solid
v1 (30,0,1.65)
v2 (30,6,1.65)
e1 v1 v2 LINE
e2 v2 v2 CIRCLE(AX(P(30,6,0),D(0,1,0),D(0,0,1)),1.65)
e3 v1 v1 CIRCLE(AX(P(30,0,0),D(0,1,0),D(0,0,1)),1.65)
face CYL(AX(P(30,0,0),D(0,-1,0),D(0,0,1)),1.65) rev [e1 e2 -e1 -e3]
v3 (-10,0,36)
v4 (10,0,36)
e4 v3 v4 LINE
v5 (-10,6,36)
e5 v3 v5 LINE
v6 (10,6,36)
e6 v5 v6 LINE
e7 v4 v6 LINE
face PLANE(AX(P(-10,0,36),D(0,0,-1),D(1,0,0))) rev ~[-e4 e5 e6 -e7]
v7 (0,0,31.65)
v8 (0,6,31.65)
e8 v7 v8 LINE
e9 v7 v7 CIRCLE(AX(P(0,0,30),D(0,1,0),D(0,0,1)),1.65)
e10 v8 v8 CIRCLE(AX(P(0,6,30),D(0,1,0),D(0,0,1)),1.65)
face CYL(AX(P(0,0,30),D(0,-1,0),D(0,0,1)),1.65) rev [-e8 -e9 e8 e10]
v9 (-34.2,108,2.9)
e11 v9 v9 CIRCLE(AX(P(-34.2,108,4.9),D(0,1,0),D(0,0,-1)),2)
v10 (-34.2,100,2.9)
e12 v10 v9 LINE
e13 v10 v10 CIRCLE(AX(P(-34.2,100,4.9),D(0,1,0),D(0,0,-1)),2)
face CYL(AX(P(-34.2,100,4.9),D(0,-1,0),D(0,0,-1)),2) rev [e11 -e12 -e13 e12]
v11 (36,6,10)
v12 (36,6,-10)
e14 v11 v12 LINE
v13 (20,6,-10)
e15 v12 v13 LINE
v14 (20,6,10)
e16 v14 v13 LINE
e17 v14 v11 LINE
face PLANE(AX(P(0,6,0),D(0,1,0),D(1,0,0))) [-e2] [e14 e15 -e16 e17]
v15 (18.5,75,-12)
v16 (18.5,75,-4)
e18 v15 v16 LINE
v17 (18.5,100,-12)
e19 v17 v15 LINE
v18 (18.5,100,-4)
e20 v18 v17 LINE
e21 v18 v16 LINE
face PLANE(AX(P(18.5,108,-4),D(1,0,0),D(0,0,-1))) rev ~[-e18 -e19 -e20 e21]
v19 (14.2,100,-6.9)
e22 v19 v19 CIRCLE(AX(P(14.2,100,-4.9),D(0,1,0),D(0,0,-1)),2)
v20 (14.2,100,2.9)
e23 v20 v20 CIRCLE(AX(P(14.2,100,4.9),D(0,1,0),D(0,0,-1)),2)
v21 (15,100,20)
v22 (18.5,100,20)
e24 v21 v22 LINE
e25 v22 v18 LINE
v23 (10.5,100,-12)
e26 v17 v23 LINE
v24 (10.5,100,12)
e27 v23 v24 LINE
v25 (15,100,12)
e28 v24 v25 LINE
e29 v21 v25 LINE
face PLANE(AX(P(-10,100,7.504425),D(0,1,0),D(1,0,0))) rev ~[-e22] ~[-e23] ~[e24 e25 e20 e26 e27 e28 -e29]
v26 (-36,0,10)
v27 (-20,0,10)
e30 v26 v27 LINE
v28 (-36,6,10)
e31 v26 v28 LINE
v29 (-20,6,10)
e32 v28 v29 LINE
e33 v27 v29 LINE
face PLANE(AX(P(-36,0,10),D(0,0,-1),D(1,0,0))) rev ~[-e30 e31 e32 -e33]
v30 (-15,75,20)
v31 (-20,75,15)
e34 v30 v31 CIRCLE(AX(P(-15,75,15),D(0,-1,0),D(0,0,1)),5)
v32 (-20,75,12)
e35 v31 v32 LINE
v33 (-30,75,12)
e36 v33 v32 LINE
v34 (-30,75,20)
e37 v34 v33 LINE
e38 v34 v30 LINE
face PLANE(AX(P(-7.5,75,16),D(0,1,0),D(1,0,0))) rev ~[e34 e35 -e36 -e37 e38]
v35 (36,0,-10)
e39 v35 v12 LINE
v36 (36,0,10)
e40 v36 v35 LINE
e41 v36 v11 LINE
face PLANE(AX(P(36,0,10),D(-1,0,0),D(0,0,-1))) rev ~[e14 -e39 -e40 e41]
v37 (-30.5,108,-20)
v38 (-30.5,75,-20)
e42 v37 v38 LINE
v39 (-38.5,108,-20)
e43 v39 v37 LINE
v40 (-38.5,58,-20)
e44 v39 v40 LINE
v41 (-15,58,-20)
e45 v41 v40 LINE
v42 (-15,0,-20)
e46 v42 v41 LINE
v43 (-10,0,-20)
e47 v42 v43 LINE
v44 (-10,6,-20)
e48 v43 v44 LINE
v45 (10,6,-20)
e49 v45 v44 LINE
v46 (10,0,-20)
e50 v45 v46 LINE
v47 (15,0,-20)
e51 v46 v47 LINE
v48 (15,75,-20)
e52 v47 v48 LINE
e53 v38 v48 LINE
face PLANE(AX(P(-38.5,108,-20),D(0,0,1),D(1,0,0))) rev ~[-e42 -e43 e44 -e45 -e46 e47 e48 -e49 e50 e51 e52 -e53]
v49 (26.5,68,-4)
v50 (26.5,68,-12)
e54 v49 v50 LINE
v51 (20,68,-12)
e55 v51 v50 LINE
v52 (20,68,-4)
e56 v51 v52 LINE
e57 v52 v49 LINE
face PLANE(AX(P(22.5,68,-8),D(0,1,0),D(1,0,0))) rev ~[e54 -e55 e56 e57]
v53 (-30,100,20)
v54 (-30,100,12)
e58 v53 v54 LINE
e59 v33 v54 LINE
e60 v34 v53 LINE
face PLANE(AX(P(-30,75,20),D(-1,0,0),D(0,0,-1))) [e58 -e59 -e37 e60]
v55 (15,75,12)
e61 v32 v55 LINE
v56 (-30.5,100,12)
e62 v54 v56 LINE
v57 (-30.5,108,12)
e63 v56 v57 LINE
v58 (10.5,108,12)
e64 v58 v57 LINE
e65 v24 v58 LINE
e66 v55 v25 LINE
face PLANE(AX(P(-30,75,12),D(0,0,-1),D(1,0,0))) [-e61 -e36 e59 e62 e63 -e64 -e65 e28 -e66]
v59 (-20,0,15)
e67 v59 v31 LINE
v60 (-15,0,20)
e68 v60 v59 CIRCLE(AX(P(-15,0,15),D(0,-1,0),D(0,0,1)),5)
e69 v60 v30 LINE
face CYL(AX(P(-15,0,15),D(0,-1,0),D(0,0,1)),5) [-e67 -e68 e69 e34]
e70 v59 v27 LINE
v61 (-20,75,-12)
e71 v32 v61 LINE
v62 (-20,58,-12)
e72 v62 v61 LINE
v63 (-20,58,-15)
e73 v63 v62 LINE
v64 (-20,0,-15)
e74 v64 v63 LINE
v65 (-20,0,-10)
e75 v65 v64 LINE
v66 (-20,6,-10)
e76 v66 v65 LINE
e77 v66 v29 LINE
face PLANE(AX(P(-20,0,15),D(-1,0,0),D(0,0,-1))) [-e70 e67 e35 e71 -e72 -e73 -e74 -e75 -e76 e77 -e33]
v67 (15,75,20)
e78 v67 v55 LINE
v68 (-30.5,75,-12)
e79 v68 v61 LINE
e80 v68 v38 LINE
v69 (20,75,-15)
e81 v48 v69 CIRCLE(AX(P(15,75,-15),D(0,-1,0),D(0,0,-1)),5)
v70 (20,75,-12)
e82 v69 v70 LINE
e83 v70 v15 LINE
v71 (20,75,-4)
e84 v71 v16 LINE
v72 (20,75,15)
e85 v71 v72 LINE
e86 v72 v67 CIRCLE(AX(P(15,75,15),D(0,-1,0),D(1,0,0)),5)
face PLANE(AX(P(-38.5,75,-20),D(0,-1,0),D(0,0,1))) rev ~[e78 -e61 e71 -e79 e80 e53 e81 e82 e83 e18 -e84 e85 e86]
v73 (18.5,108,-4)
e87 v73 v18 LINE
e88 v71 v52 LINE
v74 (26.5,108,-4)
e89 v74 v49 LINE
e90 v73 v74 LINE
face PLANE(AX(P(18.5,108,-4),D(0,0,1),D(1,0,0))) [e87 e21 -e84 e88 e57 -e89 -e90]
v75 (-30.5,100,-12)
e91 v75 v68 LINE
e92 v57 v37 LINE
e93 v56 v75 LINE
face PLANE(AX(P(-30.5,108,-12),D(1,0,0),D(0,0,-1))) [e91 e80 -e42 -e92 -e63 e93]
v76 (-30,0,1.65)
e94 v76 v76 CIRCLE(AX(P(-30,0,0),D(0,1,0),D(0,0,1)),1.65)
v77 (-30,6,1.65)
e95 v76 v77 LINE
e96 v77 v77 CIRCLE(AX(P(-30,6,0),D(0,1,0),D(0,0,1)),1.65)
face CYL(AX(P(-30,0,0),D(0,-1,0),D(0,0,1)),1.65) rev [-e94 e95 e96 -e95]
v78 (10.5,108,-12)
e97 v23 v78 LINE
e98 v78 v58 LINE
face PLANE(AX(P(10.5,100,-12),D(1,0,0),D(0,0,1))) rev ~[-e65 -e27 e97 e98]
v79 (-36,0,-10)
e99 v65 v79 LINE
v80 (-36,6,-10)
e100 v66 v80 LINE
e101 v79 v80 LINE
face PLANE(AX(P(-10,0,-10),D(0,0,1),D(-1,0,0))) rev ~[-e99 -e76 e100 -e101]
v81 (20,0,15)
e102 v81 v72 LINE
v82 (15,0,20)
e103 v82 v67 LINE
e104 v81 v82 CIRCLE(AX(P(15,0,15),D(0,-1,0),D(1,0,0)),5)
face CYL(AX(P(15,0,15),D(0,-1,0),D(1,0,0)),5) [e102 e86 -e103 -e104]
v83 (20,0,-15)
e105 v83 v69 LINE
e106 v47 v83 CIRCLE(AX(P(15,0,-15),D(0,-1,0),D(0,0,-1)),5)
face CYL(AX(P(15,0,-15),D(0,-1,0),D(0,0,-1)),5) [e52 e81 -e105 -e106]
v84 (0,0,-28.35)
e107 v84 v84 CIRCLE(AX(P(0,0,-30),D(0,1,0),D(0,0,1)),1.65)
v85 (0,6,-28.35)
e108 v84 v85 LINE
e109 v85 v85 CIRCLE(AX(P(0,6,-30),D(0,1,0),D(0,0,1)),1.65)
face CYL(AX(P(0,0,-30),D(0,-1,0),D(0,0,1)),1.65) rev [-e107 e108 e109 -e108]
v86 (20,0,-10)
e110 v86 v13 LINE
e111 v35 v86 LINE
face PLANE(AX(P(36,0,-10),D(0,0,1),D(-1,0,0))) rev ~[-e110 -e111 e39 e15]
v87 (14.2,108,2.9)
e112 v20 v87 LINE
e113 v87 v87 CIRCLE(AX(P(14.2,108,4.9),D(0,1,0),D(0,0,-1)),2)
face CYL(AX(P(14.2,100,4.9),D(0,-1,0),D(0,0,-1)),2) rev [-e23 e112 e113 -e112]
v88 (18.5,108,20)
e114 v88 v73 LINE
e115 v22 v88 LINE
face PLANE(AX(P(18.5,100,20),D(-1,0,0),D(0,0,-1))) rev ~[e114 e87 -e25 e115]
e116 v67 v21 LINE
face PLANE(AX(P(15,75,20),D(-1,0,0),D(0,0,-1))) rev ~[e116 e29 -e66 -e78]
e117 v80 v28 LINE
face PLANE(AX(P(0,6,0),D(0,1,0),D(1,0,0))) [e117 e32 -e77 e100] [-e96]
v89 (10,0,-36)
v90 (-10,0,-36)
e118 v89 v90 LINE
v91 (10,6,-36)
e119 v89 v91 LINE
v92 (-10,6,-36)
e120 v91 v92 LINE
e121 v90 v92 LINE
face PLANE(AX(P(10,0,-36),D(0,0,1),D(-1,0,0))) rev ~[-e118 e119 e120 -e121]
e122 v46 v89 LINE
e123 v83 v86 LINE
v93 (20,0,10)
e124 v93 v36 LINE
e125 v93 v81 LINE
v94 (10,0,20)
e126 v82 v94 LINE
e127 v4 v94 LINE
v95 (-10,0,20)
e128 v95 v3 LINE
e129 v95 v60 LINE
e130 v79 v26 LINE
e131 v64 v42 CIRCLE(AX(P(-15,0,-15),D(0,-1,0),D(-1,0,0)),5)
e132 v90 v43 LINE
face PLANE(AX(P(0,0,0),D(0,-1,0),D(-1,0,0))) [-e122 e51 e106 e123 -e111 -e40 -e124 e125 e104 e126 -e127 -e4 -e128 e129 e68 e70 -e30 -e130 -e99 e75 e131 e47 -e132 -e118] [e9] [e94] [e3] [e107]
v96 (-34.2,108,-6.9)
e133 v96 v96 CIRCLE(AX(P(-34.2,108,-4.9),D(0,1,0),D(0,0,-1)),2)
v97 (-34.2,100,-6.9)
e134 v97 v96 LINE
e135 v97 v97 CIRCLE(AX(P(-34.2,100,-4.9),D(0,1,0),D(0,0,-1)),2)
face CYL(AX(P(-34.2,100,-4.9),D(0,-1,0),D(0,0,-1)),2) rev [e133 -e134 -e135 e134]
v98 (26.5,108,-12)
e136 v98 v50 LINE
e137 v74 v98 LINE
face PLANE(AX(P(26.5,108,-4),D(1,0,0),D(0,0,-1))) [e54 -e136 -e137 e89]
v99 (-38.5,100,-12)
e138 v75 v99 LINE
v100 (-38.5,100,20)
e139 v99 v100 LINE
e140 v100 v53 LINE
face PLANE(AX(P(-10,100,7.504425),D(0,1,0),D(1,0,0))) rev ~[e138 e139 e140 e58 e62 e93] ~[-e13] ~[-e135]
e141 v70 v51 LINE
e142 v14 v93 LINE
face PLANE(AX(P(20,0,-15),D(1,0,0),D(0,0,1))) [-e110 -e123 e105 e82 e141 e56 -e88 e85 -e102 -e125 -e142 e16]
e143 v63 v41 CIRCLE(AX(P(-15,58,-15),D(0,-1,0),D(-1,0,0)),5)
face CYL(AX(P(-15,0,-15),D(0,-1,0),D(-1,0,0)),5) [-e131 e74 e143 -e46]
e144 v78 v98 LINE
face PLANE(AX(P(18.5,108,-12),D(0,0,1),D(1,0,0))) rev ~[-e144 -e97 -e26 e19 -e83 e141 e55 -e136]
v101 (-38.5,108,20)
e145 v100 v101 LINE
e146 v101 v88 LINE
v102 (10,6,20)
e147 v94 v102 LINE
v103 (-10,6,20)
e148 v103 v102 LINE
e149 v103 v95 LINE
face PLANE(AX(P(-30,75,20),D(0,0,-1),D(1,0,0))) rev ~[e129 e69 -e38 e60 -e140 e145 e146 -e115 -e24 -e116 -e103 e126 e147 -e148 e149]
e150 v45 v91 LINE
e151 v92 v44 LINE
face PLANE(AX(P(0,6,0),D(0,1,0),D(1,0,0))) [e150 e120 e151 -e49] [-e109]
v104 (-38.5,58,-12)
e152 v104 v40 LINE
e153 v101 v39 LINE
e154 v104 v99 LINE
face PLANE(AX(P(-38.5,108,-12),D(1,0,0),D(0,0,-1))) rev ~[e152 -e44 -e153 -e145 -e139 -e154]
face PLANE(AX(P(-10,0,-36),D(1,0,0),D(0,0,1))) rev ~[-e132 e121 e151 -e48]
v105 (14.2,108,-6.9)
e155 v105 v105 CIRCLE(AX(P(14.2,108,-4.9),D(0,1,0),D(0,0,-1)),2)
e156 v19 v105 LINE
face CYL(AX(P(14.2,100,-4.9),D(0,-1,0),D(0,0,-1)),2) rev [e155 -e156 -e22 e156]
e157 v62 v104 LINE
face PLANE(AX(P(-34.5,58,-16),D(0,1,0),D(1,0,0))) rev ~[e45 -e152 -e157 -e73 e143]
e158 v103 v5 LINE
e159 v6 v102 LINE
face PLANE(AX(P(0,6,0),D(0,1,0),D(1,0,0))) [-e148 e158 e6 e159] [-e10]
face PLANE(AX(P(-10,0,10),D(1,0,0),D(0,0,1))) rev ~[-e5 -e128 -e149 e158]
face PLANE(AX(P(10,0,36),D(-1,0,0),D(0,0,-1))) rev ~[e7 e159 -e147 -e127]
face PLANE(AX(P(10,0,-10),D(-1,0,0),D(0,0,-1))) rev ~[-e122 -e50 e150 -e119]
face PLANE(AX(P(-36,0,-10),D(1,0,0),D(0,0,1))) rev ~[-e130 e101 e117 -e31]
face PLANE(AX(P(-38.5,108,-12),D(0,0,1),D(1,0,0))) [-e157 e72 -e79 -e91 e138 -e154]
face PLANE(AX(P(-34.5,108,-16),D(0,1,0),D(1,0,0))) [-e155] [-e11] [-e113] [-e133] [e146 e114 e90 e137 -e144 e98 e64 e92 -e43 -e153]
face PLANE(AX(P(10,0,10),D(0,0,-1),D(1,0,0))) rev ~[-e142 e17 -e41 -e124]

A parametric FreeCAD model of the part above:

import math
import FreeCAD as App
import Part
import Sketcher
from FreeCAD import Vector


def add_polygon(sketch, points):
    """Adds a closed chain of lines whose ends are joined by coincident constraints."""
    first, n = sketch.GeometryCount, len(points)
    for a, b in zip(points, points[1:] + points[:1]):
        sketch.addGeometry(Part.LineSegment(App.Vector(*a, 0), App.Vector(*b, 0)), False)
    for i in range(n):
        sketch.addConstraint(Sketcher.Constraint("Coincident", first + i, 2, first + (i + 1) % n, 1))

doc = App.newDocument("Part")
body = doc.addObject("PartDesign::Body", "Body")

# Sketch on XZ plane
sketch1 = body.newObject("Sketcher::SketchObject", "Sketch")
sketch1.AttachmentSupport = (doc.getObject("XZ_Plane"), [""])
sketch1.MapMode = "FlatFace"
add_polygon(sketch1, [(-10, -36), (-10, -10), (-36, -10), (-36, 10), (-10, 10), (-10, 36), (10, 36), (10, 10), (36, 10), (36, -10), (10, -10), (10, -36)])  # lines 0-11
sketch1.addGeometry(Part.Circle(Vector(0, 30, 0), Vector(0, 0, 1), 1.6), False)  # 12
sketch1.addGeometry(Part.Circle(Vector(-30, 0, 0), Vector(0, 0, 1), 1.6), False)  # 13
sketch1.addGeometry(Part.Circle(Vector(30, 0, 0), Vector(0, 0, 1), 1.6), False)  # 14
sketch1.addGeometry(Part.Circle(Vector(0, -30, 0), Vector(0, 0, 1), 1.6), False)  # 15
sketch1.addConstraint([
    Sketcher.Constraint("Vertical", 0),
    Sketcher.Constraint("Horizontal", 1),
    Sketcher.Constraint("Vertical", 2),
    Sketcher.Constraint("Horizontal", 3),
    Sketcher.Constraint("Vertical", 4),
    Sketcher.Constraint("Horizontal", 5),
    Sketcher.Constraint("Vertical", 6),
    Sketcher.Constraint("Horizontal", 7),
    Sketcher.Constraint("Vertical", 8),
    Sketcher.Constraint("Horizontal", 9),
    Sketcher.Constraint("Vertical", 10),
    Sketcher.Constraint("Horizontal", 11),
    Sketcher.Constraint("Equal", 12, 13),
    Sketcher.Constraint("Equal", 13, 14),
    Sketcher.Constraint("Equal", 14, 15),
    Sketcher.Constraint("Symmetric", 13, 3, 14, 3, -1, 1),
    Sketcher.Constraint("Symmetric", 12, 3, 15, 3, -1, 1),
    Sketcher.Constraint("Symmetric", 0, 2, 6, 2, -1, 1),
    Sketcher.Constraint("Symmetric", 2, 2, 8, 2, -1, 1),
    Sketcher.Constraint("Symmetric", 4, 2, 10, 2, -1, 1),
    Sketcher.Constraint("Symmetric", 3, 2, 6, 2, -2),
    Sketcher.Constraint("PointOnObject", 12, 3, -2),
    Sketcher.Constraint("PointOnObject", 13, 3, -1),
    Sketcher.Constraint("Equal", 9, 0),
    Sketcher.Constraint("Equal", 11, 2),
    Sketcher.Constraint("Diameter", 12, 3.3),
    Sketcher.Constraint("DistanceX", 1, 2, 1, 1, 26.0),
    Sketcher.Constraint("DistanceX", 5, 1, 5, 2, 20.0),
    Sketcher.Constraint("DistanceY", -1, 1, 12, 3, 30.0),
    Sketcher.Constraint("DistanceX", 13, 3, -1, 1, 30.0),
])
pad1 = body.newObject("PartDesign::Pad", "Pad")
pad1.Profile = sketch1
pad1.Length = 6
pad1.Reversed = True

# Sketch on XZ plane
sketch2 = body.newObject("Sketcher::SketchObject", "Sketch001")
sketch2.AttachmentSupport = (doc.getObject("XZ_Plane"), [""])
sketch2.MapMode = "FlatFace"
sketch2.addGeometry([
    Part.LineSegment(Vector(15, -20, 0), Vector(-15, -20, 0)),  # 0
    Part.ArcOfCircle(Part.Circle(Vector(-15, -15, 0), Vector(0, 0, 1), 5), math.radians(180), math.radians(270)),  # 1
    Part.LineSegment(Vector(-20, -15, 0), Vector(-20, 15, 0)),  # 2
    Part.ArcOfCircle(Part.Circle(Vector(-15, 15, 0), Vector(0, 0, 1), 5), math.radians(90), math.radians(180)),  # 3
    Part.LineSegment(Vector(-15, 20, 0), Vector(15, 20, 0)),  # 4
    Part.ArcOfCircle(Part.Circle(Vector(15, 15, 0), Vector(0, 0, 1), 5), math.radians(0), math.radians(90)),  # 5
    Part.LineSegment(Vector(20, 15, 0), Vector(20, -15, 0)),  # 6
    Part.ArcOfCircle(Part.Circle(Vector(15, -15, 0), Vector(0, 0, 1), 5), math.radians(-90), math.radians(0)),  # 7
], False)
sketch2.addConstraint([
    Sketcher.Constraint("Tangent", 0, 2, 1, 2),
    Sketcher.Constraint("Tangent", 1, 1, 2, 1),
    Sketcher.Constraint("Tangent", 2, 2, 3, 2),
    Sketcher.Constraint("Tangent", 3, 1, 4, 1),
    Sketcher.Constraint("Tangent", 4, 2, 5, 2),
    Sketcher.Constraint("Tangent", 5, 1, 6, 1),
    Sketcher.Constraint("Tangent", 6, 2, 7, 2),
    Sketcher.Constraint("Tangent", 7, 1, 0, 1),
    Sketcher.Constraint("Horizontal", 0),
    Sketcher.Constraint("Vertical", 2),
    Sketcher.Constraint("Horizontal", 4),
    Sketcher.Constraint("Vertical", 6),
    Sketcher.Constraint("Equal", 1, 3),
    Sketcher.Constraint("Equal", 3, 5),
    Sketcher.Constraint("Equal", 5, 7),
    Sketcher.Constraint("Symmetric", 1, 3, 5, 3, -1, 1),
    Sketcher.Constraint("Equal", 4, 2),
    Sketcher.Constraint("Radius", 1, 5.0),
    Sketcher.Constraint("DistanceX", 0, 2, 0, 1, 30.0),
])
pad2 = body.newObject("PartDesign::Pad", "Pad001")
pad2.Profile = sketch2
pad2.Length = 75
pad2.Reversed = True
body2 = doc.addObject("PartDesign::Body", "Body001")
body2.AllowCompound = True

# Sketch on XZ plane
sketch3 = body2.newObject("Sketcher::SketchObject", "Sketch002")
sketch3.AttachmentSupport = (doc.getObject("XZ_Plane001"), [""])
sketch3.MapMode = "FlatFace"
sketch3.AttachmentOffset = App.Placement(Vector(0, 0, -100), App.Rotation())
add_polygon(sketch3, [(-38.5, 20), (18.5, 20), (18.5, -12), (10.5, -12), (10.5, 12), (-30.5, 12), (-30.5, -12), (-38.5, -12)])  # lines 0-7
sketch3.addGeometry(Part.Circle(Vector(-34.2, 4.9, 0), Vector(0, 0, 1), 2), False)  # 8
sketch3.addGeometry(Part.Circle(Vector(14.2, 4.9, 0), Vector(0, 0, 1), 2), False)  # 9
sketch3.addGeometry(Part.Circle(Vector(-34.2, -4.9, 0), Vector(0, 0, 1), 2), False)  # 10
sketch3.addGeometry(Part.Circle(Vector(14.2, -4.9, 0), Vector(0, 0, 1), 2), False)  # 11
sketch3.addConstraint([
    Sketcher.Constraint("Horizontal", 0),
    Sketcher.Constraint("Vertical", 1),
    Sketcher.Constraint("Horizontal", 2),
    Sketcher.Constraint("Vertical", 3),
    Sketcher.Constraint("Horizontal", 4),
    Sketcher.Constraint("Vertical", 5),
    Sketcher.Constraint("Horizontal", 6),
    Sketcher.Constraint("Vertical", 7),
    Sketcher.Constraint("Equal", 8, 9),
    Sketcher.Constraint("Equal", 9, 10),
    Sketcher.Constraint("Equal", 10, 11),
    Sketcher.Constraint("Symmetric", 8, 3, 10, 3, -1),
    Sketcher.Constraint("Symmetric", 9, 3, 11, 3, -1),
    Sketcher.Constraint("Horizontal", 8, 3, 9, 3),
    Sketcher.Constraint("Horizontal", 2, 2, 5, 2),
    Sketcher.Constraint("Equal", 2, 6),
    Sketcher.Constraint("Diameter", 8, 4.0),
    Sketcher.Constraint("DistanceX", 0, 1, 0, 2, 57.0),
    Sketcher.Constraint("DistanceX", 2, 2, 2, 1, 8.0),
    Sketcher.Constraint("DistanceY", 1, 2, 1, 1, 32.0),
    Sketcher.Constraint("DistanceY", 3, 1, 3, 2, 24.0),
    Sketcher.Constraint("DistanceY", -1, 1, 0, 2, 20.0),
    Sketcher.Constraint("DistanceX", 8, 3, -1, 1, 34.2),
    Sketcher.Constraint("DistanceY", -1, 1, 8, 3, 4.9),
    Sketcher.Constraint("DistanceX", -1, 1, 9, 3, 14.2),
    Sketcher.Constraint("DistanceX", -1, 1, 0, 2, 18.5),
])
pad3 = body2.newObject("PartDesign::Pad", "Pad002")
pad3.Profile = sketch3
pad3.Length = 8
pad3.Reversed = True
doc.recompute()

boolean = body2.newObject("PartDesign::Boolean", "Boolean")
boolean.Type = "Fuse"
boolean.addObjects([body])

# Sketch on XZ plane
sketch4 = body2.newObject("Sketcher::SketchObject", "Sketch003")
sketch4.AttachmentSupport = (doc.getObject("XZ_Plane001"), [""])
sketch4.MapMode = "FlatFace"
sketch4.AttachmentOffset = App.Placement(Vector(0, 0, -75), App.Rotation())
add_polygon(sketch4, [(-30, 12), (-30, 20), (15, 20), (15, 12)])  # lines 0-3
sketch4.addConstraint([
    Sketcher.Constraint("Vertical", 0),
    Sketcher.Constraint("Horizontal", 1),
    Sketcher.Constraint("Vertical", 2),
    Sketcher.Constraint("Horizontal", 3),
    Sketcher.Constraint("DistanceX", 1, 1, 1, 2, 45.0),
    Sketcher.Constraint("DistanceY", 0, 1, 0, 2, 8.0),
    Sketcher.Constraint("DistanceX", 0, 2, -1, 1, 30.0),
    Sketcher.Constraint("DistanceY", -1, 1, 0, 2, 20.0),
])
pad4 = body2.newObject("PartDesign::Pad", "Pad003")
pad4.Profile = sketch4
pad4.Type = "UpToFirst"
pad4.Reversed = True

# Sketch on XZ plane
sketch5 = body2.newObject("Sketcher::SketchObject", "Sketch004")
sketch5.AttachmentSupport = (doc.getObject("XZ_Plane001"), [""])
sketch5.MapMode = "FlatFace"
sketch5.AttachmentOffset = App.Placement(Vector(0, 0, -108), App.Rotation())
add_polygon(sketch5, [(18, -12), (18, -4), (26, -4), (26, -12)])  # lines 0-3
sketch5.addConstraint([
    Sketcher.Constraint("Vertical", 0),
    Sketcher.Constraint("Horizontal", 1),
    Sketcher.Constraint("Vertical", 2),
    Sketcher.Constraint("Horizontal", 3),
    Sketcher.Constraint("Equal", 3, 0),
    Sketcher.Constraint("DistanceX", 1, 1, 1, 2, 8.0),
    Sketcher.Constraint("DistanceY", 0, 2, -1, 1, 4.0),
    Sketcher.Constraint("DistanceX", -1, 1, 0, 2, 18.5),
])
pad5 = body2.newObject("PartDesign::Pad", "Pad004")
pad5.Profile = sketch5
pad5.Length = 40

# Sketch on XZ plane
sketch6 = body2.newObject("Sketcher::SketchObject", "Sketch005")
sketch6.AttachmentSupport = (doc.getObject("XZ_Plane001"), [""])
sketch6.MapMode = "FlatFace"
sketch6.AttachmentOffset = App.Placement(Vector(0, 0, -108), App.Rotation())
add_polygon(sketch6, [(-38, -20), (-38, -12), (-30, -12), (-30, -20)])  # lines 0-3
sketch6.addConstraint([
    Sketcher.Constraint("Vertical", 0),
    Sketcher.Constraint("Horizontal", 1),
    Sketcher.Constraint("Vertical", 2),
    Sketcher.Constraint("Horizontal", 3),
    Sketcher.Constraint("Equal", 3, 0),
    Sketcher.Constraint("DistanceX", 1, 1, 1, 2, 8.0),
    Sketcher.Constraint("DistanceY", 0, 2, -1, 1, 12.0),
    Sketcher.Constraint("DistanceX", 0, 2, -1, 1, 38.5),
])
pad6 = body2.newObject("PartDesign::Pad", "Pad005")
pad6.Profile = sketch6
pad6.Length = 50

# Sketch on YZ plane
sketch7 = body2.newObject("Sketcher::SketchObject", "Sketch006")
sketch7.AttachmentSupport = (doc.getObject("YZ_Plane001"), [""])
sketch7.MapMode = "FlatFace"
sketch7.AttachmentOffset = App.Placement(Vector(0, 0, -38.5), App.Rotation())
add_polygon(sketch7, [(75, -20), (58, -20), (58, -12), (75, -12)])  # lines 0-3
sketch7.addConstraint([
    Sketcher.Constraint("Horizontal", 0),
    Sketcher.Constraint("Vertical", 1),
    Sketcher.Constraint("Horizontal", 2),
    Sketcher.Constraint("Vertical", 3),
    Sketcher.Constraint("DistanceX", 0, 2, 0, 1, 17.0),
    Sketcher.Constraint("DistanceY", 1, 1, 1, 2, 8.0),
    Sketcher.Constraint("DistanceX", -1, 1, 0, 2, 58.0),
    Sketcher.Constraint("DistanceY", 0, 2, -1, 1, 20.0),
])
pad7 = body2.newObject("PartDesign::Pad", "Pad006")
pad7.Profile = sketch7
pad7.Length = 40

doc.recompute()
